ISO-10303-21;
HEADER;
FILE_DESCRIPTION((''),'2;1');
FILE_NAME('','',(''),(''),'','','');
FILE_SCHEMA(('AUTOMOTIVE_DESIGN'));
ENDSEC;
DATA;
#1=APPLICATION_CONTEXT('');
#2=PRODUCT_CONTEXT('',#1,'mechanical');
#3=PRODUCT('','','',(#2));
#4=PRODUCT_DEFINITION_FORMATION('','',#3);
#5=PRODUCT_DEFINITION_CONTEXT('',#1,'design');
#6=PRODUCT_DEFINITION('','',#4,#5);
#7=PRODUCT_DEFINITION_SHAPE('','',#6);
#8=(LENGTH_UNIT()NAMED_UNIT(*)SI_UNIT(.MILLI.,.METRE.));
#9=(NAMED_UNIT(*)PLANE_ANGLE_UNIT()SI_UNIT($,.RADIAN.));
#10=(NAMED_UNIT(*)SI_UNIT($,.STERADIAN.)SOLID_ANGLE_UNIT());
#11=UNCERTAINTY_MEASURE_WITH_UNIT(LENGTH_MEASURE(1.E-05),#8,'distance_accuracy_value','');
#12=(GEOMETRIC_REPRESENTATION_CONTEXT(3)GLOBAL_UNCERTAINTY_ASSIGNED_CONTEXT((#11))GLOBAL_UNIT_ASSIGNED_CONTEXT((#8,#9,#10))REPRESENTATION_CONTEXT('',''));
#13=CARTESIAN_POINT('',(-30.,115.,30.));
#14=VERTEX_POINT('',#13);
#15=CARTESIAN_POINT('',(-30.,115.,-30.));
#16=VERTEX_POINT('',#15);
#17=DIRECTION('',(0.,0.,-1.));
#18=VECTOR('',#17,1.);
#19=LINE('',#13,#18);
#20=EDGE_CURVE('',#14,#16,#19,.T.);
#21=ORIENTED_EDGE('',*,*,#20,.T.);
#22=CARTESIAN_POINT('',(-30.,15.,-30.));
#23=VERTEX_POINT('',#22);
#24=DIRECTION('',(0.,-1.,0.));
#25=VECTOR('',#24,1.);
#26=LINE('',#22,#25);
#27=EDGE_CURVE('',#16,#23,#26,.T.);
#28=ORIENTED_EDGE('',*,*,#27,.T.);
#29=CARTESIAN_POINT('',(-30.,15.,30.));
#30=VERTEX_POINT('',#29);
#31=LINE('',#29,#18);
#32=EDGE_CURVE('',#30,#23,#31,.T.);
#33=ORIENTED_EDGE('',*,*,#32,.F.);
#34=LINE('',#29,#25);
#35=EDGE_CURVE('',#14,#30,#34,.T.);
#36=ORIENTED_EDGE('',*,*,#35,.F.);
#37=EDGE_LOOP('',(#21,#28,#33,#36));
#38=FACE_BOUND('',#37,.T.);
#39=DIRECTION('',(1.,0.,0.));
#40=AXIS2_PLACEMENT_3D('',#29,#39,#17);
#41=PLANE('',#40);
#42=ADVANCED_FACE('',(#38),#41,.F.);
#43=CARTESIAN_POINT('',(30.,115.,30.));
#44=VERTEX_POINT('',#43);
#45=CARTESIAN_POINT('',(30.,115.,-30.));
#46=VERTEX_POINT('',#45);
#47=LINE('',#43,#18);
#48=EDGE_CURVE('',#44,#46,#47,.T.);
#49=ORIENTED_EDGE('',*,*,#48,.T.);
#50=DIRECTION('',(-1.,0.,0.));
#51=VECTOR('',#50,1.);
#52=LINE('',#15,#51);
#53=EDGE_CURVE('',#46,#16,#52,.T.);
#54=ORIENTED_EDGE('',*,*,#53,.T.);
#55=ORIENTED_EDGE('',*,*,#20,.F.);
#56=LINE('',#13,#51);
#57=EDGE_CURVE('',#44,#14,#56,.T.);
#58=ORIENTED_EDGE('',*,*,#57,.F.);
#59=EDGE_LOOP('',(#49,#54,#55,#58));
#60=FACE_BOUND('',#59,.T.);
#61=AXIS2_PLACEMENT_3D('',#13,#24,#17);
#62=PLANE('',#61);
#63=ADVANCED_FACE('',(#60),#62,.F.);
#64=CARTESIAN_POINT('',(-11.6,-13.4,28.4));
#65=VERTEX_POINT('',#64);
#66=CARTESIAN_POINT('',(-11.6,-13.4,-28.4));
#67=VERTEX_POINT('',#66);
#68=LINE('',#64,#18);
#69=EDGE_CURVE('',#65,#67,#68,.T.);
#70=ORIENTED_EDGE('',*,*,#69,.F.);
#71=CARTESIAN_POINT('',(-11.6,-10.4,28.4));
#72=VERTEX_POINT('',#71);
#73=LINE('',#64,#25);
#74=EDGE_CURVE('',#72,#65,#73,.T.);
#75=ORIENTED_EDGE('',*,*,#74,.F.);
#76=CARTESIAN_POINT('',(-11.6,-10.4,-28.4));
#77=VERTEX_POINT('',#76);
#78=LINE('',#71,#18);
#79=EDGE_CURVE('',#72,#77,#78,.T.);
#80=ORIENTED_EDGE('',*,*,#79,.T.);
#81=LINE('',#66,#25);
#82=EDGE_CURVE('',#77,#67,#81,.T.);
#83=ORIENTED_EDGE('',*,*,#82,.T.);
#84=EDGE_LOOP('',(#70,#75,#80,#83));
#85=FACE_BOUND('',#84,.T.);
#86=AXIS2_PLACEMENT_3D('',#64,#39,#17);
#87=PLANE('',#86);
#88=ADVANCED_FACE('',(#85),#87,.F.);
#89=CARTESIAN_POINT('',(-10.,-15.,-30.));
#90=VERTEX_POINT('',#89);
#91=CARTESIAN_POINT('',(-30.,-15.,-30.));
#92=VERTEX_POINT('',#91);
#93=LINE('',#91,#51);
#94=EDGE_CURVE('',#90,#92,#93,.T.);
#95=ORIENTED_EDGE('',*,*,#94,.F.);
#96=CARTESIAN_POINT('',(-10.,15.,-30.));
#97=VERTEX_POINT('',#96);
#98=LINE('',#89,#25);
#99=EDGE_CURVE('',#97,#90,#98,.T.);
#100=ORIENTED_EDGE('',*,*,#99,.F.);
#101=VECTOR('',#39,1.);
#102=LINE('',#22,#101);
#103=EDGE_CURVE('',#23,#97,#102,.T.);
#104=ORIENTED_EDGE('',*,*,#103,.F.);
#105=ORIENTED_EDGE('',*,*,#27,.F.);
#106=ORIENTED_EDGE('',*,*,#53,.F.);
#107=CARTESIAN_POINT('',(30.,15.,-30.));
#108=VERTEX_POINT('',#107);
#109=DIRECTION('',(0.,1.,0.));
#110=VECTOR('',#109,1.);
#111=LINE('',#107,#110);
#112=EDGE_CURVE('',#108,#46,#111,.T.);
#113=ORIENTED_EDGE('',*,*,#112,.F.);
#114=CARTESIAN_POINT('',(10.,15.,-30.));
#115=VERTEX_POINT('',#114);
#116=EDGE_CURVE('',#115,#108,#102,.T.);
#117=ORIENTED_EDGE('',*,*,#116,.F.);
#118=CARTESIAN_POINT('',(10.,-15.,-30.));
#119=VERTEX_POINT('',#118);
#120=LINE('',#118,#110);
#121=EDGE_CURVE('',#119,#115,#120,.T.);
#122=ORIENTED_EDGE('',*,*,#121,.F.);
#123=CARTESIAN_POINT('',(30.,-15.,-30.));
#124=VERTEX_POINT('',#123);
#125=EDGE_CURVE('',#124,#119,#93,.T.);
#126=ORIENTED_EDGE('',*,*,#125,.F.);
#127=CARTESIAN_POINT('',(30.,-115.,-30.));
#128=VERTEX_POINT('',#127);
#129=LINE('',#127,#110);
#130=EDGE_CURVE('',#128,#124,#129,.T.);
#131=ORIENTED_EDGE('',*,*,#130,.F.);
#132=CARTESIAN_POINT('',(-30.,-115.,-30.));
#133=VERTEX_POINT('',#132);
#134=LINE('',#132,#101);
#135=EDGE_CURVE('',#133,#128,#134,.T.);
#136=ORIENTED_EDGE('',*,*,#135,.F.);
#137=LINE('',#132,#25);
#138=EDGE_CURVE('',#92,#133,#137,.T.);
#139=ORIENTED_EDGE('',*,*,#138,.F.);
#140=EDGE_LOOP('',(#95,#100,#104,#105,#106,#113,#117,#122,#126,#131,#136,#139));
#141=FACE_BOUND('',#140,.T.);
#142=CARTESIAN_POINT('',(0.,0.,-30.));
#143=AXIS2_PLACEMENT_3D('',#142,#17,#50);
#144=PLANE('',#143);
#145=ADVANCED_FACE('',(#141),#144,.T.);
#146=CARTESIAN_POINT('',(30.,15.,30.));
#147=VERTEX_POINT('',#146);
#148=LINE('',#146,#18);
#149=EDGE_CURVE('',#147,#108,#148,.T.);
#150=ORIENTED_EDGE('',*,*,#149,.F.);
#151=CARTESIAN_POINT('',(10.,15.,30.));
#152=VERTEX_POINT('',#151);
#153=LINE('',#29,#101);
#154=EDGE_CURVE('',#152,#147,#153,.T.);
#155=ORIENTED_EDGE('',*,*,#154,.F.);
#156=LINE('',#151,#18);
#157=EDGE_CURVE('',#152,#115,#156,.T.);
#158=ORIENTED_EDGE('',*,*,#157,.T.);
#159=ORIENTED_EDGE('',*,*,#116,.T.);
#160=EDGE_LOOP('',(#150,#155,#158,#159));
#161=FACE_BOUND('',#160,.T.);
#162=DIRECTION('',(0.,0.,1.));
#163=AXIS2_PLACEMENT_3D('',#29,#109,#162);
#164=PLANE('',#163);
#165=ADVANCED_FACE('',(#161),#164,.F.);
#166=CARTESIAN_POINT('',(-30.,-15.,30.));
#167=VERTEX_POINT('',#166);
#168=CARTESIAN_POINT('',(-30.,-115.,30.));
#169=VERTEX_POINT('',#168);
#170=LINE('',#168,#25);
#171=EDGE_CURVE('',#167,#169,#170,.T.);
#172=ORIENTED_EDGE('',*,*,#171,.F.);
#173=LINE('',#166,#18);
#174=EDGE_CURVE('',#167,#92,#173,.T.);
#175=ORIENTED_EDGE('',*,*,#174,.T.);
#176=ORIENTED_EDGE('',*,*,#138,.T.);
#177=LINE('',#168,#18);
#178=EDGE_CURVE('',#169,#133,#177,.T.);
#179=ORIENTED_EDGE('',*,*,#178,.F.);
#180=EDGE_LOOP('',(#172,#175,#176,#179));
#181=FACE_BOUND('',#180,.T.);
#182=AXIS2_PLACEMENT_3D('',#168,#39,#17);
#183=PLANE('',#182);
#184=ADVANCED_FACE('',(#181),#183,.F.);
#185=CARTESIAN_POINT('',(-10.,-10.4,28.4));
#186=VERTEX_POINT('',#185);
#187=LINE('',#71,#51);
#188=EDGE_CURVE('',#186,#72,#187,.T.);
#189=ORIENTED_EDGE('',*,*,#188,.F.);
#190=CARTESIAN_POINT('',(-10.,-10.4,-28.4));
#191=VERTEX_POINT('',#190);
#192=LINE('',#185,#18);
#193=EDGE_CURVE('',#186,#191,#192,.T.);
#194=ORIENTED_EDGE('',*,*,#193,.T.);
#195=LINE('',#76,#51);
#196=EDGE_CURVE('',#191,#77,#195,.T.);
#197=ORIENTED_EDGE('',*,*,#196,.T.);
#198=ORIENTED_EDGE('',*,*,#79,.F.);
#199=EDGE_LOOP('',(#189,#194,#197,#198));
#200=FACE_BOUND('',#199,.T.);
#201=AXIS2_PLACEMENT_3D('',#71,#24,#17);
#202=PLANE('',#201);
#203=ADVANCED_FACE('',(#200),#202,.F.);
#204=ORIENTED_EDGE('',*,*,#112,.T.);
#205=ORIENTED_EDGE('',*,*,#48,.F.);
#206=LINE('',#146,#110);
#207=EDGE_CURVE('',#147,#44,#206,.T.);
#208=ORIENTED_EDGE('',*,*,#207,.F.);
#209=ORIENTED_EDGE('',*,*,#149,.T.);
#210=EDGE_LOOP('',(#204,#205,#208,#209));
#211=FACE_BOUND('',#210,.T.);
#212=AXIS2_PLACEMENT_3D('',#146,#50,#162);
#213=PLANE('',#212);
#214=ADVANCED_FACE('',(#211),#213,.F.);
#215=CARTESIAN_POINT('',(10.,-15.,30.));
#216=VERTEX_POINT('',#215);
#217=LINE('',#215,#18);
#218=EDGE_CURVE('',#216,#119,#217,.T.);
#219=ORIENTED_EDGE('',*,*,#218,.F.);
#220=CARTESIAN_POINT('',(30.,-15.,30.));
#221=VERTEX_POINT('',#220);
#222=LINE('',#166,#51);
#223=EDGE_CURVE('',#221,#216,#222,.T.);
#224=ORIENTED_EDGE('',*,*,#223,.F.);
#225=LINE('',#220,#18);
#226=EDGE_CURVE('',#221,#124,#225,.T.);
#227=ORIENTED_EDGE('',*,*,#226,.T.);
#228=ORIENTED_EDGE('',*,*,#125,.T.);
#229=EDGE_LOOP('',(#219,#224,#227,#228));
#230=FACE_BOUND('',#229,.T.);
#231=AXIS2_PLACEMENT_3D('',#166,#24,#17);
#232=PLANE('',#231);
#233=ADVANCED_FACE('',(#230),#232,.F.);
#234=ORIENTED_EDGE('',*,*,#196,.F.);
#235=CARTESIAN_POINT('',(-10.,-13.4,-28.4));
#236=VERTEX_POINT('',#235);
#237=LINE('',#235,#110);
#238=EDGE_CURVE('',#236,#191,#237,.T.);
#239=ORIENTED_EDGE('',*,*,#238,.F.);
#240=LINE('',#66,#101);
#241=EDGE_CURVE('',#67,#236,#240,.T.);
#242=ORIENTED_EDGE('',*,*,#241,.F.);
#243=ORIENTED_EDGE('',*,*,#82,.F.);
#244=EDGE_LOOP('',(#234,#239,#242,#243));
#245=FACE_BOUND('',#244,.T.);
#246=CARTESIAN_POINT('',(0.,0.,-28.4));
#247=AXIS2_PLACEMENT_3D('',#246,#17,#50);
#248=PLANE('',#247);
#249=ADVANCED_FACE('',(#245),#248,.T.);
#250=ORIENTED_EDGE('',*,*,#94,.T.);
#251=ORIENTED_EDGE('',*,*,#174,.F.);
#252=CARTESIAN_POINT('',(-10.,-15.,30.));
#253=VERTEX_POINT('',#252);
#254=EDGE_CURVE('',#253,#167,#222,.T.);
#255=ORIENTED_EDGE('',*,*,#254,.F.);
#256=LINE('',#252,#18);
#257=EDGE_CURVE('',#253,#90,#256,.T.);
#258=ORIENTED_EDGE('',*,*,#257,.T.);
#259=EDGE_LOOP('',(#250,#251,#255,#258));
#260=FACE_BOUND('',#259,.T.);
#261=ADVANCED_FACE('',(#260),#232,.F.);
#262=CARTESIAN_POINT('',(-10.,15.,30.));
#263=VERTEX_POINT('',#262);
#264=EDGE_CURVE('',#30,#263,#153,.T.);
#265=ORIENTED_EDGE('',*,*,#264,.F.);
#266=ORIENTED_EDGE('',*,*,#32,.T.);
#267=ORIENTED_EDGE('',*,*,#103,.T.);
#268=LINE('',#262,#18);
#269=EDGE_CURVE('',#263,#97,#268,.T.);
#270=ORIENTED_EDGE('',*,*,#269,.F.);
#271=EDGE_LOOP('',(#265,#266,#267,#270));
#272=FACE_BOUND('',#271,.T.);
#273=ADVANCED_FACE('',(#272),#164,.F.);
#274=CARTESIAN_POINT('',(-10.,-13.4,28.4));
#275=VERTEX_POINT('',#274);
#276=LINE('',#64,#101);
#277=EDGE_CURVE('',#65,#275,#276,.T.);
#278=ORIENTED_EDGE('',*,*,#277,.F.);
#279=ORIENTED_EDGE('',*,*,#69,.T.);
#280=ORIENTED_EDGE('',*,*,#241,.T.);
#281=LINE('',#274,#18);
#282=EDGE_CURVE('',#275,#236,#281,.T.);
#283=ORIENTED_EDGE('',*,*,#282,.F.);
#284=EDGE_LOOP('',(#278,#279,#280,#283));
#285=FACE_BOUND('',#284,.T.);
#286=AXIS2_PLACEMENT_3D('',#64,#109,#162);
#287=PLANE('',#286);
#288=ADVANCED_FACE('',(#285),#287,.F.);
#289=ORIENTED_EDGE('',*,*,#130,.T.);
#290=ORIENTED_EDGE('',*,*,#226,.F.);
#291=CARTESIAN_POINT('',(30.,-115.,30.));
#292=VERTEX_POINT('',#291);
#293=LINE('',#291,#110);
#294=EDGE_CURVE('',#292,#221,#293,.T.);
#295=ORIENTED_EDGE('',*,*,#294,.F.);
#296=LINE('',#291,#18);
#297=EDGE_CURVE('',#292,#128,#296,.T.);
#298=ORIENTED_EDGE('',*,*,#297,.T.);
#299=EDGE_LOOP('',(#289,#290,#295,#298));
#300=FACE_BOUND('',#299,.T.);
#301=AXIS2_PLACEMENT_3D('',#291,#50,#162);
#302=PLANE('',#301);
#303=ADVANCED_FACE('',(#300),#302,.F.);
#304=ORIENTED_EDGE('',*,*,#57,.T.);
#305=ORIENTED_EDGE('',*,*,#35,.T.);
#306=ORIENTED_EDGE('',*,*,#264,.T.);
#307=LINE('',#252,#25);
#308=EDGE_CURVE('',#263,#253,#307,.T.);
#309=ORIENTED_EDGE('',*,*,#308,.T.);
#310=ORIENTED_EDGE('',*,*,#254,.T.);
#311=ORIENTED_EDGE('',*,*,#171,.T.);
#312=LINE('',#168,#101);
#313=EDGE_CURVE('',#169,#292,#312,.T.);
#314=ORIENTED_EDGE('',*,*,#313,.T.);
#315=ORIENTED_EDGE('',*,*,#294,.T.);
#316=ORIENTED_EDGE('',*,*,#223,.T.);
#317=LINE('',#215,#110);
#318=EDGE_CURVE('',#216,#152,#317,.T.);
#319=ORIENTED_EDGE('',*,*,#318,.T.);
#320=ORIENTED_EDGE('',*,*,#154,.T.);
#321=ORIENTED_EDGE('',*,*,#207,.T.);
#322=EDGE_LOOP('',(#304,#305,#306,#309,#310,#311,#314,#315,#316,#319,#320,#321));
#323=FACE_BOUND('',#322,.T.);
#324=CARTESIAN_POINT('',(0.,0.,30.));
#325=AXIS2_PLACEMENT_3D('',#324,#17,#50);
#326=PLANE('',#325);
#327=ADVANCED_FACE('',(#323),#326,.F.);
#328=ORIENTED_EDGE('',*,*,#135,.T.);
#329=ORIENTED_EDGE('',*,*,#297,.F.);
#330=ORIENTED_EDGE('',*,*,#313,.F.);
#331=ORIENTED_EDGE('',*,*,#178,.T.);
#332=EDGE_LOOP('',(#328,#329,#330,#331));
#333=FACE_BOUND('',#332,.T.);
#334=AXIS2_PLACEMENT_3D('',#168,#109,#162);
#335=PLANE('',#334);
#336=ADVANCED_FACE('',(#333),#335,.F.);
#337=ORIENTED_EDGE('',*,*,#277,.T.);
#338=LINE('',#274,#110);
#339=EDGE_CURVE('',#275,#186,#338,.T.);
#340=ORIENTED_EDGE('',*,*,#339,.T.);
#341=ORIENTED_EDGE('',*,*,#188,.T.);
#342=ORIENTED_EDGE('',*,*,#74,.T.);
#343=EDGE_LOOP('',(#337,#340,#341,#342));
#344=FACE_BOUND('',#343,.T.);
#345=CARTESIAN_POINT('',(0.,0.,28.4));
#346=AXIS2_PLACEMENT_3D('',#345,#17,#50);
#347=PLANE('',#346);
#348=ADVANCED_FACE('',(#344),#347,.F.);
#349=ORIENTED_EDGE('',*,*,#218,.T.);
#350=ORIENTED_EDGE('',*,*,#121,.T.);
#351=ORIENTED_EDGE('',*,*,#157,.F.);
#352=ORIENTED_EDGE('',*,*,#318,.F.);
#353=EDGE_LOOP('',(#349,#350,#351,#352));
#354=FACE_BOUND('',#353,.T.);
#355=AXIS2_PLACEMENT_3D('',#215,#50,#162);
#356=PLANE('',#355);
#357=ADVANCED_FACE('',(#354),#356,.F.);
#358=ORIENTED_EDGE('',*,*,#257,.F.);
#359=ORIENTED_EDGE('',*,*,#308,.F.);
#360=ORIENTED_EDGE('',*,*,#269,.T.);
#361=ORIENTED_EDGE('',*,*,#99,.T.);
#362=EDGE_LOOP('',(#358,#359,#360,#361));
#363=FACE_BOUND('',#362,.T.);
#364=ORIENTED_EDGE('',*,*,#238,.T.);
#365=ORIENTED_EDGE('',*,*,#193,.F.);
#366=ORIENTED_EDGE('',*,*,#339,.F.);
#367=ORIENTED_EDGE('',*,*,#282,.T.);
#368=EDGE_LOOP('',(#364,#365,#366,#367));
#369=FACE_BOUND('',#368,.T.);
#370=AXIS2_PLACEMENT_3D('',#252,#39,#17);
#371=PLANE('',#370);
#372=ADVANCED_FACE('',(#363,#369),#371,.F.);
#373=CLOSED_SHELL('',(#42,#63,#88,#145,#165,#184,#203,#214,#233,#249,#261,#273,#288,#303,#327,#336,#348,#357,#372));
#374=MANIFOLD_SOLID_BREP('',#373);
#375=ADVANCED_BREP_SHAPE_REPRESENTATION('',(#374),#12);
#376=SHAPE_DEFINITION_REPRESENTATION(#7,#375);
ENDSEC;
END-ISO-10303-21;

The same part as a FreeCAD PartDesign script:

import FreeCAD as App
import Part
import Sketcher
from FreeCAD import Vector

doc = App.newDocument("Part")
params = doc.addObject("Spreadsheet::Sheet", "Params")
for row, (alias, value) in enumerate([
    ("sketch1_width", "60 mm"),
    ("sketch1_height", "100 mm"),
    ("pad1_length", "60 mm"),
    ("sketch2_width", "60 mm"),
    ("sketch2_height", "100 mm"),
    ("pad2_length", "60 mm"),
    ("sketch3_width", "20 mm"),
    ("sketch3_height", "30 mm"),
    ("pad3_length", "60 mm"),
    ("sketch4_height", "3 mm"),
    ("sketch4_width", "1.6 mm"),
    ("pad4_length", "56.8 mm"),
], start=1):
    params.set(f"A{row}", alias)
    params.set(f"B{row}", "=" + value)
    params.setAlias(f"B{row}", alias)

body = doc.addObject("PartDesign::Body", "Body")

# Sketch on XY plane
sketch1 = body.newObject("Sketcher::SketchObject", "Sketch")
sketch1.AttachmentSupport = (doc.getObject("XY_Plane"), [""])
sketch1.MapMode = "FlatFace"
sketch1.addGeometry([
    Part.LineSegment(Vector(-30, -15, 0), Vector(-30, -115, 0)),
    Part.LineSegment(Vector(-30, -115, 0), Vector(30, -115, 0)),
    Part.LineSegment(Vector(30, -115, 0), Vector(30, -15, 0)),
    Part.LineSegment(Vector(30, -15, 0), Vector(-30, -15, 0)),
], False)
sketch1.addConstraint([
    Sketcher.Constraint("Coincident", 0, 2, 1, 1),
    Sketcher.Constraint("Coincident", 1, 2, 2, 1),
    Sketcher.Constraint("Coincident", 2, 2, 3, 1),
    Sketcher.Constraint("Coincident", 3, 2, 0, 1),
    Sketcher.Constraint("Vertical", 0),
    Sketcher.Constraint("Horizontal", 1),
    Sketcher.Constraint("Vertical", 2),
    Sketcher.Constraint("Horizontal", 3),
    Sketcher.Constraint("DistanceX", 1, 1, 1, 2, 60.0),
    Sketcher.Constraint("DistanceY", 0, 2, 0, 1, 100.0),
    Sketcher.Constraint("DistanceX", 0, 2, -1, 1, 30.0),
    Sketcher.Constraint("DistanceY", 0, 2, -1, 1, 115.0),
])
sketch1.setExpression("Constraints[8]", "Params.sketch1_width")
sketch1.setExpression("Constraints[9]", "Params.sketch1_height")
pad1 = body.newObject("PartDesign::Pad", "Pad")
pad1.Profile = sketch1
pad1.setExpression("Length", "Params.pad1_length")
pad1.Midplane = True
body2 = doc.addObject("PartDesign::Body", "Body001")

# Sketch on XY plane
sketch2 = body2.newObject("Sketcher::SketchObject", "Sketch001")
sketch2.AttachmentSupport = (doc.getObject("XY_Plane001"), [""])
sketch2.MapMode = "FlatFace"
sketch2.addGeometry([
    Part.LineSegment(Vector(-30, 115, 0), Vector(-30, 15, 0)),
    Part.LineSegment(Vector(-30, 15, 0), Vector(30, 15, 0)),
    Part.LineSegment(Vector(30, 15, 0), Vector(30, 115, 0)),
    Part.LineSegment(Vector(30, 115, 0), Vector(-30, 115, 0)),
], False)
sketch2.addConstraint([
    Sketcher.Constraint("Coincident", 0, 2, 1, 1),
    Sketcher.Constraint("Coincident", 1, 2, 2, 1),
    Sketcher.Constraint("Coincident", 2, 2, 3, 1),
    Sketcher.Constraint("Coincident", 3, 2, 0, 1),
    Sketcher.Constraint("Vertical", 0),
    Sketcher.Constraint("Horizontal", 1),
    Sketcher.Constraint("Vertical", 2),
    Sketcher.Constraint("Horizontal", 3),
    Sketcher.Constraint("DistanceX", 1, 1, 1, 2, 60.0),
    Sketcher.Constraint("DistanceY", 0, 2, 0, 1, 100.0),
    Sketcher.Constraint("DistanceX", 0, 2, -1, 1, 30.0),
    Sketcher.Constraint("DistanceY", -1, 1, 0, 2, 15.0),
])
sketch2.setExpression("Constraints[8]", "Params.sketch2_width")
sketch2.setExpression("Constraints[9]", "Params.sketch2_height")
pad2 = body2.newObject("PartDesign::Pad", "Pad001")
pad2.Profile = sketch2
pad2.setExpression("Length", "Params.pad2_length")
pad2.Midplane = True
body.AllowCompound = True
doc.recompute()

boolean = body.newObject("PartDesign::Boolean", "Boolean")
boolean.Type = "Fuse"
boolean.addObjects([body2])

# Sketch on XY plane
sketch3 = body.newObject("Sketcher::SketchObject", "Sketch002")
sketch3.AttachmentSupport = (doc.getObject("XY_Plane"), [""])
sketch3.MapMode = "FlatFace"
sketch3.addGeometry([
    Part.LineSegment(Vector(-10, 15, 0), Vector(-10, -15, 0)),
    Part.LineSegment(Vector(-10, -15, 0), Vector(10, -15, 0)),
    Part.LineSegment(Vector(10, -15, 0), Vector(10, 15, 0)),
    Part.LineSegment(Vector(10, 15, 0), Vector(-10, 15, 0)),
], False)
sketch3.addConstraint([
    Sketcher.Constraint("Coincident", 0, 2, 1, 1),
    Sketcher.Constraint("Coincident", 1, 2, 2, 1),
    Sketcher.Constraint("Coincident", 2, 2, 3, 1),
    Sketcher.Constraint("Coincident", 3, 2, 0, 1),
    Sketcher.Constraint("Vertical", 0),
    Sketcher.Constraint("Horizontal", 1),
    Sketcher.Constraint("Vertical", 2),
    Sketcher.Constraint("Horizontal", 3),
    Sketcher.Constraint("Symmetric", 0, 2, 2, 2, -1, 1),
    Sketcher.Constraint("DistanceX", 1, 1, 1, 2, 20.0),
    Sketcher.Constraint("DistanceY", 0, 2, 0, 1, 30.0),
])
sketch3.setExpression("Constraints[9]", "Params.sketch3_width")
sketch3.setExpression("Constraints[10]", "Params.sketch3_height")
pad3 = body.newObject("PartDesign::Pad", "Pad002")
pad3.Profile = sketch3
pad3.setExpression("Length", "Params.pad3_length")
pad3.Midplane = True

# Sketch on XY plane
sketch4 = body.newObject("Sketcher::SketchObject", "Sketch003")
sketch4.AttachmentSupport = (doc.getObject("XY_Plane"), [""])
sketch4.MapMode = "FlatFace"
sketch4.addGeometry([
    Part.LineSegment(Vector(-11.6, -10.4, 0), Vector(-11.6, -13.4, 0)),
    Part.LineSegment(Vector(-11.6, -13.4, 0), Vector(-10, -13.4, 0)),
    Part.LineSegment(Vector(-10, -13.4, 0), Vector(-10, -10.4, 0)),
    Part.LineSegment(Vector(-10, -10.4, 0), Vector(-11.6, -10.4, 0)),
], False)
sketch4.addConstraint([
    Sketcher.Constraint("Coincident", 0, 2, 1, 1),
    Sketcher.Constraint("Coincident", 1, 2, 2, 1),
    Sketcher.Constraint("Coincident", 2, 2, 3, 1),
    Sketcher.Constraint("Coincident", 3, 2, 0, 1),
    Sketcher.Constraint("Vertical", 0),
    Sketcher.Constraint("Horizontal", 1),
    Sketcher.Constraint("Vertical", 2),
    Sketcher.Constraint("Horizontal", 3),
    Sketcher.Constraint("DistanceY", 0, 2, 0, 1, 3.0),
    Sketcher.Constraint("DistanceX", 1, 1, 1, 2, 1.6),
    Sketcher.Constraint("DistanceX", 1, 2, -1, 1, 10.0),
    Sketcher.Constraint("DistanceY", 0, 2, -1, 1, 13.4),
])
sketch4.setExpression("Constraints[8]", "Params.sketch4_height")
sketch4.setExpression("Constraints[9]", "Params.sketch4_width")
pad4 = body.newObject("PartDesign::Pad", "Pad003")
pad4.Profile = sketch4
pad4.setExpression("Length", "Params.pad4_length")
pad4.Midplane = True

doc.recompute()
